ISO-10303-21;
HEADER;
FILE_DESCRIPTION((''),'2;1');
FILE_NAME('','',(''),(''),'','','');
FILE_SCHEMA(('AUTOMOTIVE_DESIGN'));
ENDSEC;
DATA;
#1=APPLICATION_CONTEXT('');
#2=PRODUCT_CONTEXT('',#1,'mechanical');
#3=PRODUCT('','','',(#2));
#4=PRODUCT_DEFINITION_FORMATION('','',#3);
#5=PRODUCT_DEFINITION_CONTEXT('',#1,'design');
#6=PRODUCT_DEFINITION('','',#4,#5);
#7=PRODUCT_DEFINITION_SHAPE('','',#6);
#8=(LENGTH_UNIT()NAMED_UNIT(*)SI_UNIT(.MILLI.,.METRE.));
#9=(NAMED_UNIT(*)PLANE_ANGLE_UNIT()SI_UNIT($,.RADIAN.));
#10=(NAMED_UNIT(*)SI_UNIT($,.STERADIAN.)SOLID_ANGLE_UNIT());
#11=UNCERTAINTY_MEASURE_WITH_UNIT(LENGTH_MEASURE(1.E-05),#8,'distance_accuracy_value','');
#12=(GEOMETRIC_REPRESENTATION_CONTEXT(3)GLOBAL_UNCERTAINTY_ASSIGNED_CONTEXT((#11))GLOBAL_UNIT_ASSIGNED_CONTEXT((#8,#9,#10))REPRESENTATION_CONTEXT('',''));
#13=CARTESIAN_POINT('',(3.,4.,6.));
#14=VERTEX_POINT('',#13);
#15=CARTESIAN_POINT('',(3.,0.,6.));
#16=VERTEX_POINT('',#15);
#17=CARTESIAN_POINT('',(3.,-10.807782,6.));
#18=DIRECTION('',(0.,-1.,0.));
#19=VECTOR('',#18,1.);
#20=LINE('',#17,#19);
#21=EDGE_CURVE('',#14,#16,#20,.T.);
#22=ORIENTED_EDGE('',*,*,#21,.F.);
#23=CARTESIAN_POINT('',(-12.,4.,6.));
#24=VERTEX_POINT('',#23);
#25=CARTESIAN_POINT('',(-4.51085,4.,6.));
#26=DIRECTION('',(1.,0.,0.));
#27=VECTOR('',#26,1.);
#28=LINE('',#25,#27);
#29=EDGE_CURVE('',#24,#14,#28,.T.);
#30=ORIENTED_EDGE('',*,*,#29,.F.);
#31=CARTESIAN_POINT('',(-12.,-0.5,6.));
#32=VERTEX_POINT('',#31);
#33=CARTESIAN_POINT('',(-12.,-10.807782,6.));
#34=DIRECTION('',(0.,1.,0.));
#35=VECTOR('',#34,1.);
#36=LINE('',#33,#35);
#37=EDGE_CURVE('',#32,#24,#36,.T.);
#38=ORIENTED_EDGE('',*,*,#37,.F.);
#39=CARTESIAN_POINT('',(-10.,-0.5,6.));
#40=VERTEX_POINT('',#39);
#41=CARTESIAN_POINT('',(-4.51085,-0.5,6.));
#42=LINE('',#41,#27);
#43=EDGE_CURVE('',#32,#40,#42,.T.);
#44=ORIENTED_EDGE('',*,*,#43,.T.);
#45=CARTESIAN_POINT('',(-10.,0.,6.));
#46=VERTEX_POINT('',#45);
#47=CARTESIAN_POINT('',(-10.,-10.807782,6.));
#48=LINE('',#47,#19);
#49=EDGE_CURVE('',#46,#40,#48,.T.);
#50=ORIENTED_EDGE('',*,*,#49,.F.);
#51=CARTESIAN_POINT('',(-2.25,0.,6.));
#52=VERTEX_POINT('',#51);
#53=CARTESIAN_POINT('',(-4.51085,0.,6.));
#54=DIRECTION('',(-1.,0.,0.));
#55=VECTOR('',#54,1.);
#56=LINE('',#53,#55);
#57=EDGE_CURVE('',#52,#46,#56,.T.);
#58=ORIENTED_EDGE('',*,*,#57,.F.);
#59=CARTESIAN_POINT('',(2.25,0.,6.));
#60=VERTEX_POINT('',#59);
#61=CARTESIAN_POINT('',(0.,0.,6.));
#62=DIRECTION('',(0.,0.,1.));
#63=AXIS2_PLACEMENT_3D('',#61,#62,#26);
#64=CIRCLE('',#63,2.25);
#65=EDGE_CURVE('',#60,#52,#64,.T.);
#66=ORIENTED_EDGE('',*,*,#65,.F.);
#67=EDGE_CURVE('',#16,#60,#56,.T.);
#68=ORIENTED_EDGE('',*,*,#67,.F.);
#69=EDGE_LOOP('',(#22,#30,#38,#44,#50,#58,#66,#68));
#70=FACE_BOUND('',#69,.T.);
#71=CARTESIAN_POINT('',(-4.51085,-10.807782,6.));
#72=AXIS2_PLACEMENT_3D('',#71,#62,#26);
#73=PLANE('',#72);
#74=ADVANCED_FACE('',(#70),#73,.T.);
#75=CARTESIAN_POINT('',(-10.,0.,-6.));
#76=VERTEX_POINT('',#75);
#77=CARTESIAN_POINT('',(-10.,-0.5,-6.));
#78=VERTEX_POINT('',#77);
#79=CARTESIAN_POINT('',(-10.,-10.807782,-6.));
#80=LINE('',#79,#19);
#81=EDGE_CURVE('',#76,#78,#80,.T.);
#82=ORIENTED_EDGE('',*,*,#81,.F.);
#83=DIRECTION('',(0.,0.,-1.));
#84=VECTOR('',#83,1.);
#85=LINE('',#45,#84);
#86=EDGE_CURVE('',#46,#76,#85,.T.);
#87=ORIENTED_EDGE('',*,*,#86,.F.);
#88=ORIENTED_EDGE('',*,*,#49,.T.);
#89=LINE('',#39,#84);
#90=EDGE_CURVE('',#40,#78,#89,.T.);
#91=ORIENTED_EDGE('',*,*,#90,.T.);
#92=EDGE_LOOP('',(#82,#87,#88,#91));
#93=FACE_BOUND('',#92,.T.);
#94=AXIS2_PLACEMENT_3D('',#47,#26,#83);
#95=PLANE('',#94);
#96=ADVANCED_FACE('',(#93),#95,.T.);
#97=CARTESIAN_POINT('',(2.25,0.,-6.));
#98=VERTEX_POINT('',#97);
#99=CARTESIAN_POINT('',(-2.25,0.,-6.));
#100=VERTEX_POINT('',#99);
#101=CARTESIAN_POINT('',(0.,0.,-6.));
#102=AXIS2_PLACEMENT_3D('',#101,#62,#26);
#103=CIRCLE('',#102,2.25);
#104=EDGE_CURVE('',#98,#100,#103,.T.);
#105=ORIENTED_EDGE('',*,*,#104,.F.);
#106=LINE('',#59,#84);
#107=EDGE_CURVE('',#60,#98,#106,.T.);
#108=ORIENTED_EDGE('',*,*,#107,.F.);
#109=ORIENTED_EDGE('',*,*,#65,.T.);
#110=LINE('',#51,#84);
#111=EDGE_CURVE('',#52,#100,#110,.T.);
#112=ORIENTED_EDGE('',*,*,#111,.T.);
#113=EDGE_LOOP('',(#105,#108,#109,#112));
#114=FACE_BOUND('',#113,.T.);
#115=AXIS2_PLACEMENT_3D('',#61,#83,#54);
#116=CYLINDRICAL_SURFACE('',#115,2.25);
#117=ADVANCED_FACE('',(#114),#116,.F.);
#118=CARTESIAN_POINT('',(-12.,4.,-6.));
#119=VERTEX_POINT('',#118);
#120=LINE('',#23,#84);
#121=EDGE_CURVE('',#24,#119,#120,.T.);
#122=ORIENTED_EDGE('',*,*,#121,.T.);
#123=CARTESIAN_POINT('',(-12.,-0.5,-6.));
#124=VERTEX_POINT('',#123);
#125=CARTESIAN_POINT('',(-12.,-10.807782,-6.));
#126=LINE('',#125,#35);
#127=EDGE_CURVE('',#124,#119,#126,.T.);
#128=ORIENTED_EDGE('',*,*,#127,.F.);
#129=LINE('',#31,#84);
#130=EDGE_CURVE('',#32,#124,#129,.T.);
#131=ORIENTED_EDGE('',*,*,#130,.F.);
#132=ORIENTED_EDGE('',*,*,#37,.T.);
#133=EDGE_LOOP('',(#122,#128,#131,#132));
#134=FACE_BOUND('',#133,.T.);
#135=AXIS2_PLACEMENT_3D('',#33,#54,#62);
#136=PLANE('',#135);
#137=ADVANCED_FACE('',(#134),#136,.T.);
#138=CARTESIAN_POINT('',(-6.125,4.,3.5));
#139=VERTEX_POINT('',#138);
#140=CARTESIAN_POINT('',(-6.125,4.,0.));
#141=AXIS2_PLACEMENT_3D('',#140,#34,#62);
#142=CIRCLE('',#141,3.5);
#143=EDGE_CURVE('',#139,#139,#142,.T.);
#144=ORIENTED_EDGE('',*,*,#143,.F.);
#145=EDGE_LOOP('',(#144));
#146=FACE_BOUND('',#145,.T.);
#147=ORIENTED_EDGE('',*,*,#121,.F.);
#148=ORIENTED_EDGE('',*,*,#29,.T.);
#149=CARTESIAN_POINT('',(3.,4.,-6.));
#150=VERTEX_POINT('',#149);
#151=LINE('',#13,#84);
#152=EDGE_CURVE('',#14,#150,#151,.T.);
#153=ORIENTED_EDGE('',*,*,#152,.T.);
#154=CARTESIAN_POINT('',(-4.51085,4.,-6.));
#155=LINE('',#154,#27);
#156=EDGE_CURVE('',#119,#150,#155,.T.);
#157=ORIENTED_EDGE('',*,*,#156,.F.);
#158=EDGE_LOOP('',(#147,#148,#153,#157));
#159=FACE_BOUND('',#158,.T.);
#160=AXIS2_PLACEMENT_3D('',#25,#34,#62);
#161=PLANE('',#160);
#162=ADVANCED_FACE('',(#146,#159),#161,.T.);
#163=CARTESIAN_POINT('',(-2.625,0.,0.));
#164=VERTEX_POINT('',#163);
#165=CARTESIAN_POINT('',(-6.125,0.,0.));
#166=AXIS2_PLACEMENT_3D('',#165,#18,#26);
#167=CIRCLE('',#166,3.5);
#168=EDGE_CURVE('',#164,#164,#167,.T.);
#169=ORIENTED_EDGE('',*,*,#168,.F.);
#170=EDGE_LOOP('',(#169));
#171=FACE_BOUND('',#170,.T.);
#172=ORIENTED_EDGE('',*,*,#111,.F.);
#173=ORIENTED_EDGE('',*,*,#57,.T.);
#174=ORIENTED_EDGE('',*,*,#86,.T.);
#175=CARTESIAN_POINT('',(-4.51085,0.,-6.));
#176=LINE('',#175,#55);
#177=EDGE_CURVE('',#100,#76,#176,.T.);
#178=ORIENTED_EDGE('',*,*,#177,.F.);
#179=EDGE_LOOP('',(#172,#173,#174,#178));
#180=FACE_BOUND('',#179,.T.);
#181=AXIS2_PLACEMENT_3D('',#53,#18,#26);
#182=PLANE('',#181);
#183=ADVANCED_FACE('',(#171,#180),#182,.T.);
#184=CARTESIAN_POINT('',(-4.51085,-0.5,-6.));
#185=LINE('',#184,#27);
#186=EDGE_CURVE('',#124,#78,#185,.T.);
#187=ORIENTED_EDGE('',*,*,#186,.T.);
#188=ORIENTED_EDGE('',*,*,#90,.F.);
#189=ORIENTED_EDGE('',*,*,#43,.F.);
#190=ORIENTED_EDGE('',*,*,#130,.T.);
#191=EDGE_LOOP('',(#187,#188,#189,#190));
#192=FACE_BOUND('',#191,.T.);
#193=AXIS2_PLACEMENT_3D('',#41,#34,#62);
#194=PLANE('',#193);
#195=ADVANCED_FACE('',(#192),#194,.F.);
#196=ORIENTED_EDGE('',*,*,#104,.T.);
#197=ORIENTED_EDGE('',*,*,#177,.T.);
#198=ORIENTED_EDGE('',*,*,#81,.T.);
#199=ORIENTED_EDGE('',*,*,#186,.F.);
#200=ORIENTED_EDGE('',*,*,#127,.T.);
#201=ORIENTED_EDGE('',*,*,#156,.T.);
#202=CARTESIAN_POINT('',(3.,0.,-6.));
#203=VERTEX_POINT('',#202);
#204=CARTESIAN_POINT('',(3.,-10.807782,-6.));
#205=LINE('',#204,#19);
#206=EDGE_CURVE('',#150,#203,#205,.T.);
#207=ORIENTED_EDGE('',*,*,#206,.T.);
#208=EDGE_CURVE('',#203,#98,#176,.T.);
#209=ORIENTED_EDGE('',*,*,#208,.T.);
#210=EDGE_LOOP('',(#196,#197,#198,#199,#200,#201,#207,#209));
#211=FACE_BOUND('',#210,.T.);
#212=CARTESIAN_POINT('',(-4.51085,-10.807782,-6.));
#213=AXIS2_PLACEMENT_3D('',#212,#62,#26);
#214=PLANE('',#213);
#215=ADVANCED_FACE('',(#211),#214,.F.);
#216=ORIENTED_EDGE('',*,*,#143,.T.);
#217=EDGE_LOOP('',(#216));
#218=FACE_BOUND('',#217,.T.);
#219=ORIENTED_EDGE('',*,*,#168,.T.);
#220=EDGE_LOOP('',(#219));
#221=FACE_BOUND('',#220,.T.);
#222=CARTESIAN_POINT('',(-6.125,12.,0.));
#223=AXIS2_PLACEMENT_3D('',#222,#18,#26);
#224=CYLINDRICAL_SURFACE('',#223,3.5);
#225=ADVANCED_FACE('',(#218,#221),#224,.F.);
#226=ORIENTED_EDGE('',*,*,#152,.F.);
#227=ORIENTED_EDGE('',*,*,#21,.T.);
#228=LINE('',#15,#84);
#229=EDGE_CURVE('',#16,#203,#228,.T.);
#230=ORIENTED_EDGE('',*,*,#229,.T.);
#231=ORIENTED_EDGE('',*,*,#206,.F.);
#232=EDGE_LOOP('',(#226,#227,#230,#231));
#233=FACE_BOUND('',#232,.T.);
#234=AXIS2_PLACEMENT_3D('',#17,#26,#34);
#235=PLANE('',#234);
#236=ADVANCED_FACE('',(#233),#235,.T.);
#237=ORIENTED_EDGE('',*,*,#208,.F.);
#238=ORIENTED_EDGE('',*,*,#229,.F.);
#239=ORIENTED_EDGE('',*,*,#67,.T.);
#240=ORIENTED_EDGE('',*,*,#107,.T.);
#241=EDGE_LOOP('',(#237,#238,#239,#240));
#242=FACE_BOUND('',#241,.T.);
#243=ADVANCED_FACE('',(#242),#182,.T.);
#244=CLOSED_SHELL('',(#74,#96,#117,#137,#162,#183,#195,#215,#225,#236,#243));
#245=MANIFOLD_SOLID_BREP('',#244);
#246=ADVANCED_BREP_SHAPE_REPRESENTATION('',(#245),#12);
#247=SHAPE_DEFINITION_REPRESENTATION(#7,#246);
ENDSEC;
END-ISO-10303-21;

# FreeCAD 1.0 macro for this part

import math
import FreeCAD as App
import Part
import Sketcher

doc = App.newDocument("Part")
body = doc.addObject("PartDesign::Body", "Body")

# Sketch on XY plane
sketch1 = body.newObject("Sketcher::SketchObject", "Sketch")
sketch1.AttachmentSupport = (doc.getObject("XY_Plane"), [""])
sketch1.MapMode = "FlatFace"
sketch1.addGeometry(Part.LineSegment(App.Vector(-10, -0.5, 0), App.Vector(-10, 0, 0)), False)
sketch1.addGeometry(Part.LineSegment(App.Vector(-10, 0, 0), App.Vector(-2.2, 0, 0)), False)
sketch1.addGeometry(Part.ArcOfCircle(Part.Circle(App.Vector(0, 0, 0), App.Vector(0, 0, 1), 2.2), math.radians(0), math.radians(180)), False)
sketch1.addGeometry(Part.LineSegment(App.Vector(2.2, 0, 0), App.Vector(3, 0, 0)), False)
sketch1.addGeometry(Part.LineSegment(App.Vector(3, 0, 0), App.Vector(3, 4, 0)), False)
sketch1.addGeometry(Part.LineSegment(App.Vector(3, 4, 0), App.Vector(-12, 4, 0)), False)
sketch1.addGeometry(Part.LineSegment(App.Vector(-12, 4, 0), App.Vector(-12, -0.5, 0)), False)
sketch1.addGeometry(Part.LineSegment(App.Vector(-12, -0.5, 0), App.Vector(-10, -0.5, 0)), False)
sketch1.addConstraint(Sketcher.Constraint("Coincident", 0, 2, 1, 1))
sketch1.addConstraint(Sketcher.Constraint("Coincident", 1, 2, 2, 2))
sketch1.addConstraint(Sketcher.Constraint("Coincident", 2, 1, 3, 1))
sketch1.addConstraint(Sketcher.Constraint("Coincident", 3, 2, 4, 1))
sketch1.addConstraint(Sketcher.Constraint("Coincident", 4, 2, 5, 1))
sketch1.addConstraint(Sketcher.Constraint("Coincident", 5, 2, 6, 1))
sketch1.addConstraint(Sketcher.Constraint("Coincident", 6, 2, 7, 1))
sketch1.addConstraint(Sketcher.Constraint("Coincident", 7, 2, 0, 1))
sketch1.addConstraint(Sketcher.Constraint("Vertical", 0))
sketch1.addConstraint(Sketcher.Constraint("Horizontal", 1))
sketch1.addConstraint(Sketcher.Constraint("Horizontal", 3))
sketch1.addConstraint(Sketcher.Constraint("Vertical", 4))
sketch1.addConstraint(Sketcher.Constraint("Horizontal", 5))
sketch1.addConstraint(Sketcher.Constraint("Vertical", 6))
sketch1.addConstraint(Sketcher.Constraint("Horizontal", 7))
sketch1.addConstraint(Sketcher.Constraint("Coincident", 2, 3, -1, 1))
sketch1.addConstraint(Sketcher.Constraint("PointOnObject", 0, 2, -1))
sketch1.addConstraint(Sketcher.Constraint("PointOnObject", 2, 1, -1))
sketch1.addConstraint(Sketcher.Constraint("DistanceX", 5, 2, 5, 1, 15.0))
sketch1.addConstraint(Sketcher.Constraint("DistanceX", 7, 1, 7, 2, 2.0))
sketch1.addConstraint(Sketcher.Constraint("DistanceY", 4, 1, 4, 2, 4.0))
sketch1.addConstraint(Sketcher.Constraint("Radius", 2, 2.25))
sketch1.addConstraint(Sketcher.Constraint("DistanceY", 0, 1, 0, 2, 0.5))
sketch1.addConstraint(Sketcher.Constraint("DistanceX", 0, 2, -1, 1, 10.0))
pad1 = body.newObject("PartDesign::Pad", "Pad")
pad1.Profile = sketch1
pad1.Length = 12
pad1.Midplane = True

# Sketch on XZ plane
sketch2 = body.newObject("Sketcher::SketchObject", "Sketch001")
sketch2.AttachmentSupport = (doc.getObject("XZ_Plane"), [""])
sketch2.MapMode = "FlatFace"
sketch2.addGeometry(Part.Circle(App.Vector(-6.1, 0, 0), App.Vector(0, 0, 1), 3.5), False)
sketch2.addConstraint(Sketcher.Constraint("PointOnObject", 0, 3, -1))
sketch2.addConstraint(Sketcher.Constraint("Diameter", 0, 7.0))
sketch2.addConstraint(Sketcher.Constraint("DistanceX", 0, 3, -1, 1, 6.125))
pocket1 = body.newObject("PartDesign::Pocket", "Pocket")
pocket1.Profile = sketch2
pocket1.Length = 12

doc.recompute()
